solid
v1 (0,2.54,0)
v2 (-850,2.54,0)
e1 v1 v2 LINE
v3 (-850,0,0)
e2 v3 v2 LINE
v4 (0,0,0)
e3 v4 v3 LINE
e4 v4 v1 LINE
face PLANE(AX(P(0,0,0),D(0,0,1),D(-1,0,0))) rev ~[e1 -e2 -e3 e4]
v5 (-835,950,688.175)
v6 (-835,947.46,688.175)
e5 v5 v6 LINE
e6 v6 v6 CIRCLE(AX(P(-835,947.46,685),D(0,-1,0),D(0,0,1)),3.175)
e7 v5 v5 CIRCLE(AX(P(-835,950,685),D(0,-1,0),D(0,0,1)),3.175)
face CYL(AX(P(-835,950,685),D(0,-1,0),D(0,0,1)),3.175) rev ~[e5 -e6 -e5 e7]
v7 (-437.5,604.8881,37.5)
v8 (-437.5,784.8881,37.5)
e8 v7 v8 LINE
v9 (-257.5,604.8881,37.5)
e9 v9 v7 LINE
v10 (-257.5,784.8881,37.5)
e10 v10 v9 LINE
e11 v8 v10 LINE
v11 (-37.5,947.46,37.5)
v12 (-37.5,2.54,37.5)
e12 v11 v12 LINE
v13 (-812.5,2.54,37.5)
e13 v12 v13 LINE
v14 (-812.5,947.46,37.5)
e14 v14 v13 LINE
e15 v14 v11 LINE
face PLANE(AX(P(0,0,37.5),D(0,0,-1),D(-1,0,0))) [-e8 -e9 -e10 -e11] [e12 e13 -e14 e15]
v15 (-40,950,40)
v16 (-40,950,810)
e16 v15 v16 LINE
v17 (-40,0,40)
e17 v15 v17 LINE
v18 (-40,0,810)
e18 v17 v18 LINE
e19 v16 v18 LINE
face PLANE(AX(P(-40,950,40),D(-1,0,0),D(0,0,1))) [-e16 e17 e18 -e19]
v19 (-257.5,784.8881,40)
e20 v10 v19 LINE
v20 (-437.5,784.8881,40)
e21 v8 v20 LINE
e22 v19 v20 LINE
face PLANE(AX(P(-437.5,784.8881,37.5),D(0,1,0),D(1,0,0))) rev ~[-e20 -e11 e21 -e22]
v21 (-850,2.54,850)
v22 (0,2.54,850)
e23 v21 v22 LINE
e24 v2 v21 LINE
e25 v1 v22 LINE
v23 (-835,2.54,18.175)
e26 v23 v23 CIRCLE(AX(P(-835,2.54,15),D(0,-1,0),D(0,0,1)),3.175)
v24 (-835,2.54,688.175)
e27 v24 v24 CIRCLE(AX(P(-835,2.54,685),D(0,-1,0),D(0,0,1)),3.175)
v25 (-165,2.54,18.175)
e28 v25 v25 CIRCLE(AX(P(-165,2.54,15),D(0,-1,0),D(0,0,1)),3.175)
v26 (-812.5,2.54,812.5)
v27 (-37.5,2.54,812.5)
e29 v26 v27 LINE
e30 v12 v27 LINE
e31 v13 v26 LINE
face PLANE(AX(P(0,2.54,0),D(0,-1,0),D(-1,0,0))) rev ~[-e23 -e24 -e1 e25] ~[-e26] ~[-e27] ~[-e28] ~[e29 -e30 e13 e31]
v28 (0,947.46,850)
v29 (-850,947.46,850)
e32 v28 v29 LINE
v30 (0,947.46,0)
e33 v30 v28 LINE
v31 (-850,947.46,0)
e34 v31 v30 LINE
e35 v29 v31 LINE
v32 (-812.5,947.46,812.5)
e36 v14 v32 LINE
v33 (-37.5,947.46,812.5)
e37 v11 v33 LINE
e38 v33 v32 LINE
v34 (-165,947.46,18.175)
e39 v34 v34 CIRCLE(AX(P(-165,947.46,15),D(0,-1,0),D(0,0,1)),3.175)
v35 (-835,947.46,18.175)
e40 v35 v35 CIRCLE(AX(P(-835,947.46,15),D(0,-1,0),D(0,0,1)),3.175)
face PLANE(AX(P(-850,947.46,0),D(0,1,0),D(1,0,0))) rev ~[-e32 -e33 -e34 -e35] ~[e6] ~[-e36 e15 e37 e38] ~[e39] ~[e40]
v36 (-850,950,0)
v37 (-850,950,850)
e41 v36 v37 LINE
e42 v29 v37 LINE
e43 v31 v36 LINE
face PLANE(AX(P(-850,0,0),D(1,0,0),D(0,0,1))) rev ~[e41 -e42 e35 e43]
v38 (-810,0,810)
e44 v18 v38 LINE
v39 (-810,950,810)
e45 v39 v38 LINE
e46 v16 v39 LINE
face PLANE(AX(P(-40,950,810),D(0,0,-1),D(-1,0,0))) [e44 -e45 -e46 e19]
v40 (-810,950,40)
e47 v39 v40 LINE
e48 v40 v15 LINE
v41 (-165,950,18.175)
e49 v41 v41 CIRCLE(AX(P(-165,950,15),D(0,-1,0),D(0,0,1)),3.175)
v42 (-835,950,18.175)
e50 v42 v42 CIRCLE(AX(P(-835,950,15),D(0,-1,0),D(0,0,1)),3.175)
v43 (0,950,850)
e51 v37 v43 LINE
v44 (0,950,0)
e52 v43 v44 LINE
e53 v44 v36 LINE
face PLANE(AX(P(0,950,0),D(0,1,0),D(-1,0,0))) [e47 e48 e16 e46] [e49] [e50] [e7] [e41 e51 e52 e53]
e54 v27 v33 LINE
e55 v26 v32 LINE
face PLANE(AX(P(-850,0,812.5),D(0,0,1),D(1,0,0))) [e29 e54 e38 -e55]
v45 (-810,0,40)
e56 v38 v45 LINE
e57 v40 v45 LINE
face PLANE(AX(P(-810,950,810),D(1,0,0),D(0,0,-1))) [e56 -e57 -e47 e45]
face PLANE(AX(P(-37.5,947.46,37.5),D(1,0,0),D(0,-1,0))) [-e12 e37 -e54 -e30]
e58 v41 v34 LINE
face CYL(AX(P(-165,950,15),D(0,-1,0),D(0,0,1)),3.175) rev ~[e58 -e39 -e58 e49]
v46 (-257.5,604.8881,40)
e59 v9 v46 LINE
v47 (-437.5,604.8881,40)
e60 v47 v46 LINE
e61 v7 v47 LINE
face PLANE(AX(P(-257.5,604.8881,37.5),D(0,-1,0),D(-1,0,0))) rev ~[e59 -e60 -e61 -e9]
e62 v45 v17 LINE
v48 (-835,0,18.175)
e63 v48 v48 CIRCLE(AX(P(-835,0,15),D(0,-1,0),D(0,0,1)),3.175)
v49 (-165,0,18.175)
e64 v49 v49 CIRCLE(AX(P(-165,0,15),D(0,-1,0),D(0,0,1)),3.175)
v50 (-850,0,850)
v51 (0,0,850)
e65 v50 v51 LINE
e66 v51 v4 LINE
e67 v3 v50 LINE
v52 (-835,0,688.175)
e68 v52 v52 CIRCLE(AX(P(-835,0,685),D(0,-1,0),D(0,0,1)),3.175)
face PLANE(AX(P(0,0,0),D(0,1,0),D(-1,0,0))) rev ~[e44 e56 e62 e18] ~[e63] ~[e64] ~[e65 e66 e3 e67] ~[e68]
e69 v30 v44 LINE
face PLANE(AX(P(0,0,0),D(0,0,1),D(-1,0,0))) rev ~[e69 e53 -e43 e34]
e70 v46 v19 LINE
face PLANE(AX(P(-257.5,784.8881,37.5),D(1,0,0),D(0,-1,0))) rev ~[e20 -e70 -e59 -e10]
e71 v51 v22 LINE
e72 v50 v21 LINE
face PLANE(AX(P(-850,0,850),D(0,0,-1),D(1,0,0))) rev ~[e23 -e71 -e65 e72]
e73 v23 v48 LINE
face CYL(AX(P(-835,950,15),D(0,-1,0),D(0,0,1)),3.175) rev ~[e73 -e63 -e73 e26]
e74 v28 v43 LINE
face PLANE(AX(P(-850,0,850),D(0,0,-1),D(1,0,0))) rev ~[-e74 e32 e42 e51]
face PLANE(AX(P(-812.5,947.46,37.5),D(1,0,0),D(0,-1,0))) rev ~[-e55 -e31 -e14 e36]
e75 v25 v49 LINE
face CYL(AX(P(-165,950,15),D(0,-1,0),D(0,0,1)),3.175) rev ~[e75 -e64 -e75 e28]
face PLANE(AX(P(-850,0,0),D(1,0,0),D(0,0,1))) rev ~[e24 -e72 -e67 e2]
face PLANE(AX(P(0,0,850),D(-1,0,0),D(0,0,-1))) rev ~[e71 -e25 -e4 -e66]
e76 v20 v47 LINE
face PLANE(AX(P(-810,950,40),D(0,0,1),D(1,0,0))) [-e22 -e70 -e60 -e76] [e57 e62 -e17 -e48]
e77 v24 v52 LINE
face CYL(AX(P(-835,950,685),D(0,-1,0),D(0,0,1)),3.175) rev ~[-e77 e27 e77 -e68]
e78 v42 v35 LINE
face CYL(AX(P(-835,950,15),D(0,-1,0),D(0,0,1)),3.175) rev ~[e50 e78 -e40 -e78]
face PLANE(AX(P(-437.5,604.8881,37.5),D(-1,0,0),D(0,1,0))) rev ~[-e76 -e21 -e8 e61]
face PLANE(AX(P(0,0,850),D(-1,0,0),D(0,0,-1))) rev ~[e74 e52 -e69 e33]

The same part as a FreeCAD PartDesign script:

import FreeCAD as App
import Part
import Sketcher

V = App.Vector

doc = App.newDocument("Part")
body = doc.addObject("PartDesign::Body", "Body")

# Sketch on XZ plane
sketch1 = body.newObject("Sketcher::SketchObject", "Sketch")
sketch1.AttachmentSupport = (doc.getObject("XZ_Plane"), [""])
sketch1.MapMode = "FlatFace"
sketch1.addGeometry([
    Part.LineSegment(V(0, 850, 0), V(0, 0, 0)),
    Part.LineSegment(V(0, 0, 0), V(-850, 0, 0)),
    Part.LineSegment(V(-850, 0, 0), V(-850, 850, 0)),
    Part.LineSegment(V(-850, 850, 0), V(0, 850, 0)),
], False)
sketch1.addConstraint([
    Sketcher.Constraint("Coincident", 0, 2, 1, 1),
    Sketcher.Constraint("Coincident", 1, 2, 2, 1),
    Sketcher.Constraint("Coincident", 2, 2, 3, 1),
    Sketcher.Constraint("Coincident", 3, 2, 0, 1),
    Sketcher.Constraint("Vertical", 0),
    Sketcher.Constraint("Horizontal", 1),
    Sketcher.Constraint("Vertical", 2),
    Sketcher.Constraint("Horizontal", 3),
    Sketcher.Constraint("Coincident", 0, 2, -1, 1),
    Sketcher.Constraint("Equal", 3, 0),
    Sketcher.Constraint("DistanceX", 1, 2, 1, 1, 850.0),
])
pad1 = body.newObject("PartDesign::Pad", "Pad")
pad1.Profile = sketch1
pad1.Length = 950
pad1.Reversed = True

# Sketch on XZ plane
sketch2 = body.newObject("Sketcher::SketchObject", "Sketch001")
sketch2.AttachmentSupport = (doc.getObject("XZ_Plane"), [""])
sketch2.MapMode = "FlatFace"
sketch2.AttachmentOffset = App.Placement(V(0, 0, -950), App.Rotation())
sketch2.addGeometry([
    Part.LineSegment(V(-40, 40, 0), V(-810, 40, 0)),
    Part.LineSegment(V(-810, 40, 0), V(-810, 810, 0)),
    Part.LineSegment(V(-810, 810, 0), V(-40, 810, 0)),
    Part.LineSegment(V(-40, 810, 0), V(-40, 40, 0)),
], False)
sketch2.addConstraint([
    Sketcher.Constraint("Coincident", 0, 2, 1, 1),
    Sketcher.Constraint("Coincident", 1, 2, 2, 1),
    Sketcher.Constraint("Coincident", 2, 2, 3, 1),
    Sketcher.Constraint("Coincident", 3, 2, 0, 1),
    Sketcher.Constraint("Horizontal", 0),
    Sketcher.Constraint("Vertical", 1),
    Sketcher.Constraint("Horizontal", 2),
    Sketcher.Constraint("Vertical", 3),
    Sketcher.Constraint("Equal", 2, 1),
    Sketcher.Constraint("DistanceY", -1, 1, 0, 2, 40.0),
    Sketcher.Constraint("DistanceX", 2, 2, -1, 1, 40.0),
    Sketcher.Constraint("DistanceX", 0, 2, 0, 1, 770.0),
])
pocket1 = body.newObject("PartDesign::Pocket", "Pocket")
pocket1.Profile = sketch2
pocket1.Length = 1000
pocket1.Reversed = True

# Sketch on XY plane
sketch3 = body.newObject("Sketcher::SketchObject", "Sketch002")
sketch3.AttachmentSupport = (doc.getObject("XY_Plane"), [""])
sketch3.MapMode = "FlatFace"
sketch3.AttachmentOffset = App.Placement(V(0, 0, 850), App.Rotation())
sketch3.addGeometry([
    Part.LineSegment(V(-850, 947, 0), V(-850, 3, 0)),
    Part.LineSegment(V(-850, 3, 0), V(0, 3, 0)),
    Part.LineSegment(V(0, 3, 0), V(0, 947, 0)),
    Part.LineSegment(V(0, 947, 0), V(-850, 947, 0)),
], False)
sketch3.addConstraint([
    Sketcher.Constraint("Coincident", 0, 2, 1, 1),
    Sketcher.Constraint("Coincident", 1, 2, 2, 1),
    Sketcher.Constraint("Coincident", 2, 2, 3, 1),
    Sketcher.Constraint("Coincident", 3, 2, 0, 1),
    Sketcher.Constraint("Vertical", 0),
    Sketcher.Constraint("Horizontal", 1),
    Sketcher.Constraint("Vertical", 2),
    Sketcher.Constraint("Horizontal", 3),
    Sketcher.Constraint("PointOnObject", 1, 2, -2),
    Sketcher.Constraint("DistanceX", 1, 1, 1, 2, 850.0),
    Sketcher.Constraint("DistanceY", -1, 1, 0, 2, 2.54),
    Sketcher.Constraint("DistanceY", 0, 2, 0, 1, 944.92),
])
pocket2 = body.newObject("PartDesign::Pocket", "Pocket001")
pocket2.Profile = sketch3
pocket2.Length = 37.5

# Sketch on XY plane
sketch4 = body.newObject("Sketcher::SketchObject", "Sketch003")
sketch4.AttachmentSupport = (doc.getObject("XY_Plane"), [""])
sketch4.MapMode = "FlatFace"
sketch4.addGeometry([
    Part.LineSegment(V(0, 947, 0), V(0, 3, 0)),
    Part.LineSegment(V(0, 3, 0), V(-850, 3, 0)),
    Part.LineSegment(V(-850, 3, 0), V(-850, 947, 0)),
    Part.LineSegment(V(-850, 947, 0), V(0, 947, 0)),
], False)
sketch4.addConstraint([
    Sketcher.Constraint("Coincident", 0, 2, 1, 1),
    Sketcher.Constraint("Coincident", 1, 2, 2, 1),
    Sketcher.Constraint("Coincident", 2, 2, 3, 1),
    Sketcher.Constraint("Coincident", 3, 2, 0, 1),
    Sketcher.Constraint("Vertical", 0),
    Sketcher.Constraint("Horizontal", 1),
    Sketcher.Constraint("Vertical", 2),
    Sketcher.Constraint("Horizontal", 3),
    Sketcher.Constraint("PointOnObject", 0, 2, -2),
    Sketcher.Constraint("DistanceX", 1, 2, 1, 1, 850.0),
    Sketcher.Constraint("DistanceY", -1, 1, 0, 2, 2.54),
    Sketcher.Constraint("DistanceY", 0, 2, 0, 1, 944.92),
])
pocket3 = body.newObject("PartDesign::Pocket", "Pocket002")
pocket3.Profile = sketch4
pocket3.Length = 37.5
pocket3.Reversed = True

# Sketch on XY plane
sketch5 = body.newObject("Sketcher::SketchObject", "Sketch004")
sketch5.AttachmentSupport = (doc.getObject("XY_Plane"), [""])
sketch5.MapMode = "FlatFace"
sketch5.AttachmentOffset = App.Placement(V(0, 0, 37.5), App.Rotation())
sketch5.addGeometry([
    Part.LineSegment(V(0, 3, 0), V(-38, 3, 0)),  # 0
    Part.LineSegment(V(-38, 3, 0), V(-38, 947, 0)),  # 1
    Part.LineSegment(V(-38, 947, 0), V(0, 947, 0)),  # 2
    Part.LineSegment(V(0, 947, 0), V(0, 3, 0)),  # 3
    Part.LineSegment(V(-812, 3, 0), V(-850, 3, 0)),  # 4
    Part.LineSegment(V(-850, 3, 0), V(-850, 947, 0)),  # 5
    Part.LineSegment(V(-850, 947, 0), V(-812, 947, 0)),  # 6
    Part.LineSegment(V(-812, 947, 0), V(-812, 3, 0)),  # 7
], False)
sketch5.addConstraint([
    Sketcher.Constraint("Coincident", 0, 2, 1, 1),
    Sketcher.Constraint("Coincident", 1, 2, 2, 1),
    Sketcher.Constraint("Coincident", 2, 2, 3, 1),
    Sketcher.Constraint("Coincident", 3, 2, 0, 1),
    Sketcher.Constraint("Coincident", 4, 2, 5, 1),
    Sketcher.Constraint("Coincident", 5, 2, 6, 1),
    Sketcher.Constraint("Coincident", 6, 2, 7, 1),
    Sketcher.Constraint("Coincident", 7, 2, 4, 1),
    Sketcher.Constraint("Horizontal", 0),
    Sketcher.Constraint("Vertical", 1),
    Sketcher.Constraint("Horizontal", 2),
    Sketcher.Constraint("Vertical", 3),
    Sketcher.Constraint("Horizontal", 4),
    Sketcher.Constraint("Vertical", 5),
    Sketcher.Constraint("Horizontal", 6),
    Sketcher.Constraint("Vertical", 7),
    Sketcher.Constraint("PointOnObject", 2, 2, -2),
    Sketcher.Constraint("Horizontal", 3, 2, 4, 2),
    Sketcher.Constraint("Horizontal", 2, 2, 5, 2),
    Sketcher.Constraint("Equal", 2, 4),
    Sketcher.Constraint("DistanceX", 0, 2, 0, 1, 37.5),
    Sketcher.Constraint("DistanceX", 4, 2, -1, 1, 850.0),
    Sketcher.Constraint("DistanceY", 1, 1, 1, 2, 944.92),
    Sketcher.Constraint("DistanceY", -1, 1, 0, 2, 2.54),
])
pocket4 = body.newObject("PartDesign::Pocket", "Pocket003")
pocket4.Profile = sketch5
pocket4.Length = 1000
pocket4.Reversed = True

# Sketch on XZ plane
sketch6 = body.newObject("Sketcher::SketchObject", "Sketch005")
sketch6.AttachmentSupport = (doc.getObject("XZ_Plane"), [""])
sketch6.MapMode = "FlatFace"
sketch6.AttachmentOffset = App.Placement(V(0, 0, -950), App.Rotation())
sketch6.addGeometry([
    Part.Circle(V(-835, 685, 0), V(0, 0, 1), 3.2),
    Part.Circle(V(-835, 15, 0), V(0, 0, 1), 3.2),
    Part.Circle(V(-165, 15, 0), V(0, 0, 1), 3.2),
    Part.Circle(V(-165, 685, 0), V(0, 0, 1), 3.2),
], False)
sketch6.addConstraint([
    Sketcher.Constraint("Equal", 0, 1),
    Sketcher.Constraint("Equal", 1, 2),
    Sketcher.Constraint("Equal", 2, 3),
    Sketcher.Constraint("Horizontal", 1, 3, 2, 3),
    Sketcher.Constraint("Horizontal", 0, 3, 3, 3),
    Sketcher.Constraint("Vertical", 0, 3, 1, 3),
    Sketcher.Constraint("Vertical", 2, 3, 3, 3),
    Sketcher.Constraint("Diameter", 0, 6.35),
    Sketcher.Constraint("DistanceX", 0, 3, -1, 1, 835.0),
    Sketcher.Constraint("DistanceY", -1, 1, 0, 3, 685.0),
    Sketcher.Constraint("DistanceY", -1, 1, 1, 3, 15.0),
    Sketcher.Constraint("DistanceX", 2, 3, -1, 1, 165.0),
])
doc.recompute()
hole = body.newObject("PartDesign::Hole", "Hole")
hole.Profile = sketch6
hole.ThreadType = "None"
hole.Diameter = 6.35
hole.DepthType = "ThroughAll"
hole.Reversed = True

# Sketch on XY plane
sketch7 = body.newObject("Sketcher::SketchObject", "Sketch006")
sketch7.AttachmentSupport = (doc.getObject("XY_Plane"), [""])
sketch7.MapMode = "FlatFace"
sketch7.AttachmentOffset = App.Placement(V(0, 0, 37.5), App.Rotation())
sketch7.addGeometry([
    Part.LineSegment(V(-258, 785, 0), V(-258, 605, 0)),
    Part.LineSegment(V(-258, 605, 0), V(-438, 605, 0)),
    Part.LineSegment(V(-438, 605, 0), V(-438, 785, 0)),
    Part.LineSegment(V(-438, 785, 0), V(-258, 785, 0)),
], False)
sketch7.addConstraint([
    Sketcher.Constraint("Coincident", 0, 2, 1, 1),
    Sketcher.Constraint("Coincident", 1, 2, 2, 1),
    Sketcher.Constraint("Coincident", 2, 2, 3, 1),
    Sketcher.Constraint("Coincident", 3, 2, 0, 1),
    Sketcher.Constraint("Vertical", 0),
    Sketcher.Constraint("Horizontal", 1),
    Sketcher.Constraint("Vertical", 2),
    Sketcher.Constraint("Horizontal", 3),
    Sketcher.Constraint("Equal", 3, 0),
    Sketcher.Constraint("DistanceX", 1, 2, 1, 1, 180.0),
    Sketcher.Constraint("DistanceX", 0, 2, -1, 1, 257.5),
    Sketcher.Constraint("DistanceY", -1, 1, 0, 2, 604.888),
])
pocket5 = body.newObject("PartDesign::Pocket", "Pocket004")
pocket5.Profile = sketch7
pocket5.Length = 10
pocket5.Reversed = True

doc.recompute()
